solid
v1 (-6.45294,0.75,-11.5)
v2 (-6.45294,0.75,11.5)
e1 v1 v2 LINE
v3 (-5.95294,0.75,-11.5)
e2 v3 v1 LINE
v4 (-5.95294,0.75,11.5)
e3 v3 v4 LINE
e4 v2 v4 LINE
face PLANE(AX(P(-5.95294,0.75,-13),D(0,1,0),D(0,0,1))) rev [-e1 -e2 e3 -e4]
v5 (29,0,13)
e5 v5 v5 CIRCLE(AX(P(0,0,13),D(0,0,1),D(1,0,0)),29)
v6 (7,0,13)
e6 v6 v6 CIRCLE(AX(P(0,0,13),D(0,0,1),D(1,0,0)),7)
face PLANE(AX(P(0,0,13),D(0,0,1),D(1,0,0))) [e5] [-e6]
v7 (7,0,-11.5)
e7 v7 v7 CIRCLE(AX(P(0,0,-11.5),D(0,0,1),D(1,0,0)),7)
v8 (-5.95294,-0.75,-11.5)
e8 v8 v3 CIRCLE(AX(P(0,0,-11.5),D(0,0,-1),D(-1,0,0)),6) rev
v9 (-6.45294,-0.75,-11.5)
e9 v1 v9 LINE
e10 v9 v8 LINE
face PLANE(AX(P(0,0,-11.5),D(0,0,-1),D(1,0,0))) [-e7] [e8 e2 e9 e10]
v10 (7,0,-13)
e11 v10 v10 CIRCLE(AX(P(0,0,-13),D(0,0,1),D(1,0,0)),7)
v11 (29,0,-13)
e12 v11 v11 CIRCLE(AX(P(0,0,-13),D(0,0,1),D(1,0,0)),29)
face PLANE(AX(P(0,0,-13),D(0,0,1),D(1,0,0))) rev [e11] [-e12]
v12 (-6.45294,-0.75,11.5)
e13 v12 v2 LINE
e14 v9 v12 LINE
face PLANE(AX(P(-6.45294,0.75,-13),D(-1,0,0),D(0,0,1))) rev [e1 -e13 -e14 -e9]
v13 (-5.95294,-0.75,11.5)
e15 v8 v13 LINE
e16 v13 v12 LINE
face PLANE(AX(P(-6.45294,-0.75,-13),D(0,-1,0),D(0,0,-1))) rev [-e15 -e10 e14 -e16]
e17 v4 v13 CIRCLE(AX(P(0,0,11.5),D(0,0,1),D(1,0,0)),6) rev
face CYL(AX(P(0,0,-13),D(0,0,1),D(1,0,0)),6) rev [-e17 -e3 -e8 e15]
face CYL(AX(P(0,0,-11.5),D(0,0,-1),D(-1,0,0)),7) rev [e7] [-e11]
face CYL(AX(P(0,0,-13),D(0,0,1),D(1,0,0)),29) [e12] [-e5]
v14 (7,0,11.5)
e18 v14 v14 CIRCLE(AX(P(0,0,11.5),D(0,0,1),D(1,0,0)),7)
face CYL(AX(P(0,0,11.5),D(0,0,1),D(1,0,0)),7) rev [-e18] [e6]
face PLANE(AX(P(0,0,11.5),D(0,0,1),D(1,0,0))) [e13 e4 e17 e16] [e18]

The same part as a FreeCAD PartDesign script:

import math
import FreeCAD as App
import Part
import Sketcher
from FreeCAD import Vector

doc = App.newDocument("Part")
body = doc.addObject("PartDesign::Body", "Body")

# Sketch on XY plane
sketch1 = doc.addObject("Sketcher::SketchObject", "Sketch")
body.addObject(sketch1)
sketch1.AttachmentSupport = (doc.XY_Plane, [""])
sketch1.MapMode = "FlatFace"
sketch1.addGeometry([
    Part.Circle(Vector(0, 0, 0), Vector(0, 0, 1), 29),  # 0
    Part.LineSegment(Vector(-6.5, 0.8, 0), Vector(-6, 0.8, 0)),  # 1
    Part.ArcOfCircle(Part.Circle(Vector(0, 0, 0), Vector(0, 0, 1), 6), math.radians(-173), math.radians(173)),  # 2
    Part.LineSegment(Vector(-6, -0.8, 0), Vector(-6.5, -0.8, 0)),  # 3
    Part.LineSegment(Vector(-6.5, -0.8, 0), Vector(-6.5, 0.8, 0)),  # 4
], False)
sketch1.addConstraint([
    Sketcher.Constraint("Coincident", 1, 2, 2, 2),
    Sketcher.Constraint("Coincident", 2, 1, 3, 1),
    Sketcher.Constraint("Coincident", 3, 2, 4, 1),
    Sketcher.Constraint("Coincident", 4, 2, 1, 1),
    Sketcher.Constraint("Horizontal", 1),
    Sketcher.Constraint("Horizontal", 3),
    Sketcher.Constraint("Vertical", 4),
    Sketcher.Constraint("Coincident", 0, 3, -1, 1),
    Sketcher.Constraint("Coincident", 2, 3, -1, 1),
    Sketcher.Constraint("Vertical", 1, 2, 2, 1),
    Sketcher.Constraint("Diameter", 0, 58.0),
    Sketcher.Constraint("Radius", 2, 6.0),
    Sketcher.Constraint("DistanceX", 1, 1, 1, 2, 0.5),
    Sketcher.Constraint("DistanceY", 4, 1, 4, 2, 1.5),
])
pad1 = doc.addObject("PartDesign::Pad", "Pad")
body.addObject(pad1)
pad1.Profile = sketch1
pad1.Type = "TwoLengths"
pad1.Length = 13
pad1.Length2 = 13

# Sketch on XY plane
sketch2 = doc.addObject("Sketcher::SketchObject", "Sketch001")
body.addObject(sketch2)
sketch2.AttachmentSupport = (doc.XY_Plane, [""])
sketch2.MapMode = "FlatFace"
sketch2.AttachmentOffset = App.Placement(Vector(0, 0, 13), App.Rotation())
sketch2.addGeometry(Part.Circle(Vector(0, 0, 0), Vector(0, 0, 1), 7), False)
sketch2.addConstraint([
    Sketcher.Constraint("Coincident", 0, 3, -1, 1),
    Sketcher.Constraint("Diameter", 0, 14.0),
])
pocket1 = doc.addObject("PartDesign::Pocket", "Pocket")
body.addObject(pocket1)
pocket1.Profile = sketch2
pocket1.Length = 1.5
doc.recompute()

mirrored = doc.addObject("PartDesign::Mirrored", "Mirrored")
body.addObject(mirrored)
mirrored.Originals = [pocket1]
mirrored.MirrorPlane = (doc.XY_Plane, [""])
body.Tip = mirrored

doc.recompute()
